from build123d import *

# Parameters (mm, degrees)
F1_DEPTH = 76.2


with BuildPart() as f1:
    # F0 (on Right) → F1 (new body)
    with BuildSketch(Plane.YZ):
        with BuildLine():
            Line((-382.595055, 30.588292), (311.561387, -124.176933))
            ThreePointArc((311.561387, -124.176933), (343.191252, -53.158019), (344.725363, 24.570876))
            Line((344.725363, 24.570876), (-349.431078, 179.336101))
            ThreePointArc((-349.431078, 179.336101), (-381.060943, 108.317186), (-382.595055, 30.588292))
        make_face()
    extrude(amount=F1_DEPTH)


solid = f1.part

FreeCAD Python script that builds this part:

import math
import FreeCAD as App
import Part
import Sketcher
Q = App.Units.Quantity

doc = App.newDocument("Part")
body = doc.addObject("PartDesign::Body", "Body")

# Sketch on YZ plane
sketch1 = doc.addObject("Sketcher::SketchObject", "Sketch")
body.addObject(sketch1)
sketch1.AttachmentSupport = (doc.YZ_Plane, [""])
sketch1.MapMode = "FlatFace"
sketch1.addGeometry(Part.LineSegment(App.Vector(-383, 31, 0), App.Vector(312, -124, 0)), False)
sketch1.addGeometry(Part.ArcOfCircle(Part.Circle(App.Vector(152, -11, 0), App.Vector(0, 0, 1), 196), math.radians(-35), math.radians(10)), False)
sketch1.addGeometry(Part.LineSegment(App.Vector(345, 25, 0), App.Vector(-349, 179, 0)), False)
sketch1.addGeometry(Part.ArcOfCircle(Part.Circle(App.Vector(-190, 66, 0), App.Vector(0, 0, 1), 196), math.radians(145), math.radians(190)), False)
sketch1.addConstraint(Sketcher.Constraint("Coincident", 0, 2, 1, 1))
sketch1.addConstraint(Sketcher.Constraint("Coincident", 1, 2, 2, 1))
sketch1.addConstraint(Sketcher.Constraint("Coincident", 2, 2, 3, 1))
sketch1.addConstraint(Sketcher.Constraint("Coincident", 3, 2, 0, 1))
sketch1.addConstraint(Sketcher.Constraint("Parallel", 0, 2))
sketch1.addConstraint(Sketcher.Constraint("Equal", 0, 2))
sketch1.addConstraint(Sketcher.Constraint("Distance", 0, Q("28 in")))
sketch1.addConstraint(Sketcher.Constraint("Radius", 1, Q("196.017346 mm")))
sketch1.addConstraint(Sketcher.Constraint("Radius", 3, Q("196.017355 mm")))
sketch1.addConstraint(Sketcher.Constraint("DistanceY", -1, 1, 2, 2, Q("179.336101 mm")))
sketch1.addConstraint(Sketcher.Constraint("DistanceY", 1, 2, 3, 3, Q("41.0907 mm")))
sketch1.addConstraint(Sketcher.Constraint("DistanceY", 1, 3, -1, 1, Q("10.502411 mm")))
sketch1.addConstraint(Sketcher.Constraint("DistanceX", 2, 2, -1, 1, Q("349.431078 mm")))
sketch1.addConstraint(Sketcher.Constraint("DistanceX", 1, 3, 0, 2, Q("159.690022 mm")))
pad1 = doc.addObject("PartDesign::Pad", "Pad")
body.addObject(pad1)
pad1.Profile = sketch1
pad1.Length = Q("3 in")

doc.recompute()
